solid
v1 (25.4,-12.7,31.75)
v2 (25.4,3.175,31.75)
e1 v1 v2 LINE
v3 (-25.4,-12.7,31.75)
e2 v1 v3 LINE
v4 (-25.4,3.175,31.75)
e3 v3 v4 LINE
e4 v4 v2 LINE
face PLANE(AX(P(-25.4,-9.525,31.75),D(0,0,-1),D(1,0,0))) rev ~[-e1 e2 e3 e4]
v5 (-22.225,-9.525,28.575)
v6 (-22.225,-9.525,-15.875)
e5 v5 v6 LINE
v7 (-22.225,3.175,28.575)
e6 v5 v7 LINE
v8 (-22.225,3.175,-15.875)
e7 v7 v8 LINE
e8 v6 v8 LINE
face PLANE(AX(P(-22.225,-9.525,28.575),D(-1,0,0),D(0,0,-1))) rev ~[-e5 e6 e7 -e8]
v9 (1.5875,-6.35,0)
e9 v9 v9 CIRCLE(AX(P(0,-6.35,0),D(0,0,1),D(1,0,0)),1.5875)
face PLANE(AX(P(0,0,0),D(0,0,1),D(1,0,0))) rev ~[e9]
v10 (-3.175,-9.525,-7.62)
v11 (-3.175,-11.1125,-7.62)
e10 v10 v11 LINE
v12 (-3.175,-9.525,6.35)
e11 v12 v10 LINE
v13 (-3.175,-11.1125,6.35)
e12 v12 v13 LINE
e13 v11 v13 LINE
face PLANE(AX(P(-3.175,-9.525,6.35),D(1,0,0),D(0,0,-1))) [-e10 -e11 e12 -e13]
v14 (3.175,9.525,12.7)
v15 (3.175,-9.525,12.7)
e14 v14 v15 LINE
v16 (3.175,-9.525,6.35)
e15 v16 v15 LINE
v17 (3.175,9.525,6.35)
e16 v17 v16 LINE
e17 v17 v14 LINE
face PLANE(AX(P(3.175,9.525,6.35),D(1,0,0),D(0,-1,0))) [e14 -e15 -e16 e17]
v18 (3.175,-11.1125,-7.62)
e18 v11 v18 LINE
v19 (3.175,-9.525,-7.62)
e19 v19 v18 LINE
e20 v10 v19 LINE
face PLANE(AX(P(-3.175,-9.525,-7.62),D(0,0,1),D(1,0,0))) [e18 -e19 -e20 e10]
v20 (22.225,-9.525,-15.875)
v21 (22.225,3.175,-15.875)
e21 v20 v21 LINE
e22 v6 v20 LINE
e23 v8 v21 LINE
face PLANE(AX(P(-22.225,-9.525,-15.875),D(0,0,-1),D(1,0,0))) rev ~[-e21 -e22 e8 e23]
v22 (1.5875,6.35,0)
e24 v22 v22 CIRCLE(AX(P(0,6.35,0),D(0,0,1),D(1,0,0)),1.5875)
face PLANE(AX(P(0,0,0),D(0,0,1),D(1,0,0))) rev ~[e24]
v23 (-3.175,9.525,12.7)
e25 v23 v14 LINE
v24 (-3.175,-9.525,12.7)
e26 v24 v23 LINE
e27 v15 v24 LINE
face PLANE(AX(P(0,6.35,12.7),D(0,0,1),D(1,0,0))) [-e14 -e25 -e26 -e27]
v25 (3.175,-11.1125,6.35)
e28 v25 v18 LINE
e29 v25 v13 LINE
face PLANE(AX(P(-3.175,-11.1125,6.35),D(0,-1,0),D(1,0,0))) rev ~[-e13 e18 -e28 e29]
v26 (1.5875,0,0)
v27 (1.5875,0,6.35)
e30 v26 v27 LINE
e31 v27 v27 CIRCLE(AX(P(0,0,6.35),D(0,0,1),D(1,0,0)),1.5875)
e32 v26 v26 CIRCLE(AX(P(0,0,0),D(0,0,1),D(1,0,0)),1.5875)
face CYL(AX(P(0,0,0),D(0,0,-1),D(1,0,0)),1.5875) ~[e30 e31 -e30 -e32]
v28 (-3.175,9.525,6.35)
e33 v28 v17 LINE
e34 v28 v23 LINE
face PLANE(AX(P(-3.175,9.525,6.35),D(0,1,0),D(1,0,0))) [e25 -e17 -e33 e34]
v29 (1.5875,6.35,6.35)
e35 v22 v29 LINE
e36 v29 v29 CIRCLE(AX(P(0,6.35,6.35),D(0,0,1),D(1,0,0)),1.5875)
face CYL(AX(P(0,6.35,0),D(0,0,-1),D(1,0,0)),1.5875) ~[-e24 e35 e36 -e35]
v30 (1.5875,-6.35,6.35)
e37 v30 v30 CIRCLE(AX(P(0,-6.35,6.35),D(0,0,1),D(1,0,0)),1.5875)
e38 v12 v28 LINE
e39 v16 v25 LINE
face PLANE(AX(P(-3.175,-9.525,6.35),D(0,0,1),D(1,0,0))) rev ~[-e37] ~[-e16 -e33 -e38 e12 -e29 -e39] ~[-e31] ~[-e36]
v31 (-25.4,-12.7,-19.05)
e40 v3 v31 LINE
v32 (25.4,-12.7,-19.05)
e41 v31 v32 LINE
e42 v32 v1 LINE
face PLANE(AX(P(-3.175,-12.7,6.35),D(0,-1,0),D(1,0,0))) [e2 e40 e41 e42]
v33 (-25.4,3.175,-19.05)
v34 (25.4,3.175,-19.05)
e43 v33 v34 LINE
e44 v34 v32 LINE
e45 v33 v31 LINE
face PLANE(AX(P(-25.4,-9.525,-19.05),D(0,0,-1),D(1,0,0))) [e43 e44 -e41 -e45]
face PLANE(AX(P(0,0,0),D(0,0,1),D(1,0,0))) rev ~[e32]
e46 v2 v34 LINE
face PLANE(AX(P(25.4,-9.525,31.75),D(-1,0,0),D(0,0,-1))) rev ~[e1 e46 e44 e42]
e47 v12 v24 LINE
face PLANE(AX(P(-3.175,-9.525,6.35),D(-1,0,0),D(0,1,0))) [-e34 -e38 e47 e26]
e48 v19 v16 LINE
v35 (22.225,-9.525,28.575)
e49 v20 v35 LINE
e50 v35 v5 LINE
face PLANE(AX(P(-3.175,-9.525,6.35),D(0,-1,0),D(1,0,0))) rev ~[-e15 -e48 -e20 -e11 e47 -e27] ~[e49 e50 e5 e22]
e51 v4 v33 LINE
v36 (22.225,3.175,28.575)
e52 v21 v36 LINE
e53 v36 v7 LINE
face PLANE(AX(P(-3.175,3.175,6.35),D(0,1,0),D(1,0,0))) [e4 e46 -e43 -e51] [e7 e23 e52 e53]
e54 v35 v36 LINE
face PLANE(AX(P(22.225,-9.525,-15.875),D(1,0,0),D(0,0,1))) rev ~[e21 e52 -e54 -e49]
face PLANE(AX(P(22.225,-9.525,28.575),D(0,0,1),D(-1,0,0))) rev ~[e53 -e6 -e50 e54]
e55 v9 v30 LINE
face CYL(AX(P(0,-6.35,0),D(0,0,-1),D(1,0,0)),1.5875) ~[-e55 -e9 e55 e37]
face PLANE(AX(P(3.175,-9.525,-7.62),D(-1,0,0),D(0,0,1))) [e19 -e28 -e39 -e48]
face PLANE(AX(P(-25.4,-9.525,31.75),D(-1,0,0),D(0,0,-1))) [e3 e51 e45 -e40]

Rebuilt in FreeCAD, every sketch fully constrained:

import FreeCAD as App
import Part
import Sketcher
from FreeCAD import Vector
Q = App.Units.Quantity

doc = App.newDocument("Part")
body = doc.addObject("PartDesign::Body", "Body")
body.AllowCompound = True

sketch1 = body.newObject("Sketcher::SketchObject", "Sketch")
sketch1.AttachmentSupport = (doc.getObject("XY_Plane"), [""])
sketch1.MapMode = "FlatFace"
sketch1.addGeometry([
    Part.Circle(Vector(0, 6.35, 0), Vector(0, 0, 1), 1.5875),
    Part.Circle(Vector(0, 0, 0), Vector(0, 0, 1), 1.5875),
    Part.Circle(Vector(0, -6.35, 0), Vector(0, 0, 1), 1.5875),
], False)
sketch1.addConstraint([
    Sketcher.Constraint("Coincident", 1, 3, -1, 1),
    Sketcher.Constraint("Equal", 0, 1),
    Sketcher.Constraint("Equal", 1, 2),
    Sketcher.Constraint("Symmetric", 0, 3, 2, 3, -1, 1),
    Sketcher.Constraint("PointOnObject", 0, 3, -2),
    Sketcher.Constraint("Diameter", 0, Q("0.125 in")),
    Sketcher.Constraint("DistanceY", -1, 1, 0, 3, Q("0.25 in")),
])
pad1 = body.newObject("PartDesign::Pad", "Pad")
pad1.Profile = sketch1
pad1.Length = Q("0.25 in")

sketch2 = body.newObject("Sketcher::SketchObject", "Sketch001")
sketch2.AttachmentSupport = (doc.getObject("XY_Plane"), [""])
sketch2.MapMode = "FlatFace"
sketch2.AttachmentOffset = App.Placement(Vector(0, 0, 0.25 * 25.4), App.Rotation())
sketch2.addGeometry([
    Part.LineSegment(Vector(3.175, 9.525, 0), Vector(-3.175, 9.525, 0)),
    Part.LineSegment(Vector(-3.175, 9.525, 0), Vector(-3.175, -9.525, 0)),
    Part.LineSegment(Vector(-3.175, -9.525, 0), Vector(3.175, -9.525, 0)),
    Part.LineSegment(Vector(3.175, -9.525, 0), Vector(3.175, 9.525, 0)),
], False)
sketch2.addConstraint([
    Sketcher.Constraint("Coincident", 0, 2, 1, 1),
    Sketcher.Constraint("Coincident", 1, 2, 2, 1),
    Sketcher.Constraint("Coincident", 2, 2, 3, 1),
    Sketcher.Constraint("Coincident", 3, 2, 0, 1),
    Sketcher.Constraint("Horizontal", 0),
    Sketcher.Constraint("Vertical", 1),
    Sketcher.Constraint("Horizontal", 2),
    Sketcher.Constraint("Vertical", 3),
    Sketcher.Constraint("Symmetric", 0, 2, 2, 2, -1, 1),
    Sketcher.Constraint("DistanceX", 0, 2, 0, 1, Q("0.25 in")),
    Sketcher.Constraint("DistanceY", 1, 2, 1, 1, Q("0.75 in")),
])
pad2 = body.newObject("PartDesign::Pad", "Pad001")
pad2.Profile = sketch2
pad2.Length = Q("0.25 in")

sketch3 = body.newObject("Sketcher::SketchObject", "Sketch002")
sketch3.AttachmentSupport = (doc.getObject("XZ_Plane"), [""])
sketch3.MapMode = "FlatFace"
sketch3.AttachmentOffset = App.Placement(Vector(0, 0, 0.375 * 25.4), App.Rotation())
sketch3.addGeometry([
    Part.LineSegment(Vector(25.4, -19.05, 0), Vector(25.4, 31.75, 0)),
    Part.LineSegment(Vector(25.4, 31.75, 0), Vector(-25.4, 31.75, 0)),
    Part.LineSegment(Vector(-25.4, 31.75, 0), Vector(-25.4, -19.05, 0)),
    Part.LineSegment(Vector(-25.4, -19.05, 0), Vector(25.4, -19.05, 0)),
    Part.LineSegment(Vector(-3.175, -7.62, 0), Vector(-3.175, 6.35, 0)),
    Part.LineSegment(Vector(-3.175, 6.35, 0), Vector(3.175, 6.35, 0)),
    Part.LineSegment(Vector(3.175, 6.35, 0), Vector(3.175, -7.62, 0)),
    Part.LineSegment(Vector(3.175, -7.62, 0), Vector(-3.175, -7.62, 0)),
], False)
sketch3.addConstraint([
    Sketcher.Constraint("Coincident", 0, 2, 1, 1),
    Sketcher.Constraint("Coincident", 1, 2, 2, 1),
    Sketcher.Constraint("Coincident", 2, 2, 3, 1),
    Sketcher.Constraint("Coincident", 3, 2, 0, 1),
    Sketcher.Constraint("Coincident", 4, 2, 5, 1),
    Sketcher.Constraint("Coincident", 5, 2, 6, 1),
    Sketcher.Constraint("Coincident", 6, 2, 7, 1),
    Sketcher.Constraint("Coincident", 7, 2, 4, 1),
    Sketcher.Constraint("Vertical", 0),
    Sketcher.Constraint("Horizontal", 1),
    Sketcher.Constraint("Vertical", 2),
    Sketcher.Constraint("Horizontal", 3),
    Sketcher.Constraint("Vertical", 4),
    Sketcher.Constraint("Horizontal", 5),
    Sketcher.Constraint("Vertical", 6),
    Sketcher.Constraint("Horizontal", 7),
    Sketcher.Constraint("Equal", 3, 0),
    Sketcher.Constraint("DistanceX", 1, 2, 1, 1, Q("2 in")),
    Sketcher.Constraint("DistanceX", -1, 1, 0, 2, Q("1 in")),
    Sketcher.Constraint("DistanceY", 4, 2, 1, 2, Q("1 in")),
    Sketcher.Constraint("DistanceX", 5, 1, 5, 2, Q("0.25 in")),
    Sketcher.Constraint("DistanceY", 4, 1, 4, 2, Q("0.55 in")),
    Sketcher.Constraint("DistanceY", -1, 1, 4, 2, Q("0.25 in")),
    Sketcher.Constraint("DistanceX", 1, 2, 4, 2, Q("0.875 in")),
])
pad3 = body.newObject("PartDesign::Pad", "Pad002")
pad3.Profile = sketch3
pad3.Length = Q("0.125 in")

sketch4 = body.newObject("Sketcher::SketchObject", "Sketch003")
sketch4.AttachmentSupport = (doc.getObject("XZ_Plane"), [""])
sketch4.MapMode = "FlatFace"
sketch4.AttachmentOffset = App.Placement(Vector(0, 0, 0.375 * 25.4), App.Rotation())
sketch4.addGeometry([
    Part.LineSegment(Vector(-25.4, -19.05, 0), Vector(-25.4, 31.75, 0)),
    Part.LineSegment(Vector(-25.4, 31.75, 0), Vector(25.4, 31.75, 0)),
    Part.LineSegment(Vector(25.4, 31.75, 0), Vector(25.4, -19.05, 0)),
    Part.LineSegment(Vector(25.4, -19.05, 0), Vector(-25.4, -19.05, 0)),
    Part.LineSegment(Vector(22.225, -15.875, 0), Vector(22.225, 28.575, 0)),
    Part.LineSegment(Vector(22.225, 28.575, 0), Vector(-22.225, 28.575, 0)),
    Part.LineSegment(Vector(-22.225, 28.575, 0), Vector(-22.225, -15.875, 0)),
    Part.LineSegment(Vector(-22.225, -15.875, 0), Vector(22.225, -15.875, 0)),
], False)
sketch4.addConstraint([
    Sketcher.Constraint("Coincident", 0, 2, 1, 1),
    Sketcher.Constraint("Coincident", 1, 2, 2, 1),
    Sketcher.Constraint("Coincident", 2, 2, 3, 1),
    Sketcher.Constraint("Coincident", 3, 2, 0, 1),
    Sketcher.Constraint("Coincident", 4, 2, 5, 1),
    Sketcher.Constraint("Coincident", 5, 2, 6, 1),
    Sketcher.Constraint("Coincident", 6, 2, 7, 1),
    Sketcher.Constraint("Coincident", 7, 2, 4, 1),
    Sketcher.Constraint("Vertical", 0),
    Sketcher.Constraint("Horizontal", 1),
    Sketcher.Constraint("Vertical", 2),
    Sketcher.Constraint("Horizontal", 3),
    Sketcher.Constraint("Vertical", 4),
    Sketcher.Constraint("Horizontal", 5),
    Sketcher.Constraint("Vertical", 6),
    Sketcher.Constraint("Horizontal", 7),
    Sketcher.Constraint("Equal", 3, 0),
    Sketcher.Constraint("Equal", 7, 4),
    Sketcher.Constraint("DistanceX", 1, 1, 1, 2, Q("2 in")),
    Sketcher.Constraint("DistanceX", 0, 2, -1, 1, Q("1 in")),
    Sketcher.Constraint("DistanceX", 4, 2, 1, 2, Q("0.125 in")),
    Sketcher.Constraint("DistanceY", 4, 2, 1, 2, Q("0.125 in")),
    Sketcher.Constraint("DistanceX", 0, 2, 5, 2, Q("0.125 in")),
    Sketcher.Constraint("DistanceY", -1, 1, 0, 2, Q("1.25 in")),
])
pad4 = body.newObject("PartDesign::Pad", "Pad003")
pad4.Profile = sketch4
pad4.Length = Q("0.5 in")
pad4.Reversed = True

sketch5 = body.newObject("Sketcher::SketchObject", "Sketch004")
sketch5.AttachmentSupport = (doc.getObject("XZ_Plane"), [""])
sketch5.MapMode = "FlatFace"
sketch5.AttachmentOffset = App.Placement(Vector(0, 0, 0.5 * 25.4), App.Rotation())
sketch5.addGeometry([
    Part.LineSegment(Vector(3.175, -7.62, 0), Vector(3.175, 6.35, 0)),
    Part.LineSegment(Vector(3.175, 6.35, 0), Vector(-3.175, 6.35, 0)),
    Part.LineSegment(Vector(-3.175, 6.35, 0), Vector(-3.175, -7.62, 0)),
    Part.LineSegment(Vector(-3.175, -7.62, 0), Vector(3.175, -7.62, 0)),
], False)
sketch5.addConstraint([
    Sketcher.Constraint("Coincident", 0, 2, 1, 1),
    Sketcher.Constraint("Coincident", 1, 2, 2, 1),
    Sketcher.Constraint("Coincident", 2, 2, 3, 1),
    Sketcher.Constraint("Coincident", 3, 2, 0, 1),
    Sketcher.Constraint("Vertical", 0),
    Sketcher.Constraint("Horizontal", 1),
    Sketcher.Constraint("Vertical", 2),
    Sketcher.Constraint("Horizontal", 3),
    Sketcher.Constraint("DistanceX", 1, 2, 1, 1, Q("0.25 in")),
    Sketcher.Constraint("DistanceY", 0, 1, 0, 2, Q("0.55 in")),
    Sketcher.Constraint("DistanceY", 2, 2, -1, 1, Q("0.3 in")),
    Sketcher.Constraint("DistanceX", -1, 1, 0, 2, Q("0.125 in")),
])
pad5 = body.newObject("PartDesign::Pad", "Pad004")
pad5.Profile = sketch5
pad5.Length = Q("0.0625 in")
pad5.Reversed = True

doc.recompute()
